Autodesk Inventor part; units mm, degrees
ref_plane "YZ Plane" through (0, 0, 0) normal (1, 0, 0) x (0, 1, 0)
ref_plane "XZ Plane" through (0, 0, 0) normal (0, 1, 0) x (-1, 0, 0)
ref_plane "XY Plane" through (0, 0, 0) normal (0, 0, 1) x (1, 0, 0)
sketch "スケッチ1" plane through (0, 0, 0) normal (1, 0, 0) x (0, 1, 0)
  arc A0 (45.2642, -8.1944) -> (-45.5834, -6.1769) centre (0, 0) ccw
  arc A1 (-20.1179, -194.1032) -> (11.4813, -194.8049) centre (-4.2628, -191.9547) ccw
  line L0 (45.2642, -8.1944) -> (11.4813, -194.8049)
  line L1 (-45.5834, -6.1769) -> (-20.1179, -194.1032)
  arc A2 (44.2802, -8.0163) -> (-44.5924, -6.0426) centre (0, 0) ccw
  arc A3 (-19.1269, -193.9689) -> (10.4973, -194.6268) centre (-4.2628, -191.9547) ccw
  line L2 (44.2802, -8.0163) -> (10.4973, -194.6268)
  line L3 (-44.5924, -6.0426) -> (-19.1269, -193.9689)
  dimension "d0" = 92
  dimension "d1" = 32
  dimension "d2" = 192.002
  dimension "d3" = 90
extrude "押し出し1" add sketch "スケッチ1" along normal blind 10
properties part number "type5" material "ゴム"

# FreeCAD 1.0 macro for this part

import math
import FreeCAD as App
import Part
import Sketcher

doc = App.newDocument("Part")
body = doc.addObject("PartDesign::Body", "Body")

# Sketch on YZ plane
sketch1 = body.newObject("Sketcher::SketchObject", "Sketch")
sketch1.AttachmentSupport = (doc.getObject("YZ_Plane"), [""])
sketch1.MapMode = "FlatFace"
sketch1.addGeometry([
    Part.LineSegment(App.Vector(11.4813, -194.8049, 0), App.Vector(45.2642, -8.1944, 0)),  # 0
    Part.ArcOfCircle(Part.Circle(App.Vector(0, 0, 0), App.Vector(0, 0, 1), 45.999956), math.radians(-10.261398), math.radians(187.717012)),  # 1
    Part.LineSegment(App.Vector(-45.5834, -6.1769, 0), App.Vector(-20.1179, -194.1032, 0)),  # 2
    Part.ArcOfCircle(Part.Circle(App.Vector(-4.2628, -191.9547, 0), App.Vector(0, 0, 1), 16.000008), math.radians(-172.282944), math.radians(-10.261287)),  # 3
    Part.ArcOfCircle(Part.Circle(App.Vector(0, 0, 0), App.Vector(0, 0, 1), 44.999969), math.radians(-10.261446), math.radians(187.716997)),  # 4
    Part.LineSegment(App.Vector(44.2802, -8.0163, 0), App.Vector(10.4973, -194.6268, 0)),  # 5
    Part.ArcOfCircle(Part.Circle(App.Vector(-4.2628, -191.9547, 0), App.Vector(0, 0, 1), 14.999949), math.radians(-172.282986), math.radians(-10.261423)),  # 6
    Part.LineSegment(App.Vector(-19.1269, -193.9689, 0), App.Vector(-44.5924, -6.0426, 0)),  # 7
], False)
sketch1.addConstraint([
    Sketcher.Constraint("Coincident", 0, 2, 1, 1),
    Sketcher.Constraint("Coincident", 1, 2, 2, 1),
    Sketcher.Constraint("Coincident", 2, 2, 3, 1),
    Sketcher.Constraint("Coincident", 3, 2, 0, 1),
    Sketcher.Constraint("Coincident", 4, 1, 5, 1),
    Sketcher.Constraint("Coincident", 5, 2, 6, 2),
    Sketcher.Constraint("Coincident", 6, 1, 7, 1),
    Sketcher.Constraint("Coincident", 7, 2, 4, 2),
    Sketcher.Constraint("Coincident", 1, 3, -1, 1),
    Sketcher.Constraint("Coincident", 4, 3, -1, 1),
    Sketcher.Constraint("Coincident", 6, 3, 3, 3),
    Sketcher.Constraint("Radius", 1, 46.0),
    Sketcher.Constraint("Radius", 3, 16.0),
    Sketcher.Constraint("Radius", 4, 45.0),
    Sketcher.Constraint("Radius", 6, 15.0),
    Sketcher.Constraint("DistanceX", 3, 3, 5, 2, 14.76),
    Sketcher.Constraint("DistanceY", 1, 2, -1, 1, 6.177),
    Sketcher.Constraint("DistanceX", 2, 2, -1, 1, 20.118),
    Sketcher.Constraint("DistanceY", 3, 2, -1, 1, 194.805),
    Sketcher.Constraint("DistanceX", 6, 1, -1, 1, 19.127),
    Sketcher.Constraint("DistanceY", 6, 1, -1, 1, 193.969),
    Sketcher.Constraint("DistanceX", 3, 3, 0, 2, 49.527),
    Sketcher.Constraint("DistanceX", 2, 2, 3, 3, 15.855),
    Sketcher.Constraint("DistanceX", 4, 1, 0, 2, 0.984),
    Sketcher.Constraint("DistanceX", 1, 2, 7, 2, 0.991),
])
pad1 = body.newObject("PartDesign::Pad", "Pad")
pad1.Profile = sketch1
pad1.Length = 10

doc.recompute()
